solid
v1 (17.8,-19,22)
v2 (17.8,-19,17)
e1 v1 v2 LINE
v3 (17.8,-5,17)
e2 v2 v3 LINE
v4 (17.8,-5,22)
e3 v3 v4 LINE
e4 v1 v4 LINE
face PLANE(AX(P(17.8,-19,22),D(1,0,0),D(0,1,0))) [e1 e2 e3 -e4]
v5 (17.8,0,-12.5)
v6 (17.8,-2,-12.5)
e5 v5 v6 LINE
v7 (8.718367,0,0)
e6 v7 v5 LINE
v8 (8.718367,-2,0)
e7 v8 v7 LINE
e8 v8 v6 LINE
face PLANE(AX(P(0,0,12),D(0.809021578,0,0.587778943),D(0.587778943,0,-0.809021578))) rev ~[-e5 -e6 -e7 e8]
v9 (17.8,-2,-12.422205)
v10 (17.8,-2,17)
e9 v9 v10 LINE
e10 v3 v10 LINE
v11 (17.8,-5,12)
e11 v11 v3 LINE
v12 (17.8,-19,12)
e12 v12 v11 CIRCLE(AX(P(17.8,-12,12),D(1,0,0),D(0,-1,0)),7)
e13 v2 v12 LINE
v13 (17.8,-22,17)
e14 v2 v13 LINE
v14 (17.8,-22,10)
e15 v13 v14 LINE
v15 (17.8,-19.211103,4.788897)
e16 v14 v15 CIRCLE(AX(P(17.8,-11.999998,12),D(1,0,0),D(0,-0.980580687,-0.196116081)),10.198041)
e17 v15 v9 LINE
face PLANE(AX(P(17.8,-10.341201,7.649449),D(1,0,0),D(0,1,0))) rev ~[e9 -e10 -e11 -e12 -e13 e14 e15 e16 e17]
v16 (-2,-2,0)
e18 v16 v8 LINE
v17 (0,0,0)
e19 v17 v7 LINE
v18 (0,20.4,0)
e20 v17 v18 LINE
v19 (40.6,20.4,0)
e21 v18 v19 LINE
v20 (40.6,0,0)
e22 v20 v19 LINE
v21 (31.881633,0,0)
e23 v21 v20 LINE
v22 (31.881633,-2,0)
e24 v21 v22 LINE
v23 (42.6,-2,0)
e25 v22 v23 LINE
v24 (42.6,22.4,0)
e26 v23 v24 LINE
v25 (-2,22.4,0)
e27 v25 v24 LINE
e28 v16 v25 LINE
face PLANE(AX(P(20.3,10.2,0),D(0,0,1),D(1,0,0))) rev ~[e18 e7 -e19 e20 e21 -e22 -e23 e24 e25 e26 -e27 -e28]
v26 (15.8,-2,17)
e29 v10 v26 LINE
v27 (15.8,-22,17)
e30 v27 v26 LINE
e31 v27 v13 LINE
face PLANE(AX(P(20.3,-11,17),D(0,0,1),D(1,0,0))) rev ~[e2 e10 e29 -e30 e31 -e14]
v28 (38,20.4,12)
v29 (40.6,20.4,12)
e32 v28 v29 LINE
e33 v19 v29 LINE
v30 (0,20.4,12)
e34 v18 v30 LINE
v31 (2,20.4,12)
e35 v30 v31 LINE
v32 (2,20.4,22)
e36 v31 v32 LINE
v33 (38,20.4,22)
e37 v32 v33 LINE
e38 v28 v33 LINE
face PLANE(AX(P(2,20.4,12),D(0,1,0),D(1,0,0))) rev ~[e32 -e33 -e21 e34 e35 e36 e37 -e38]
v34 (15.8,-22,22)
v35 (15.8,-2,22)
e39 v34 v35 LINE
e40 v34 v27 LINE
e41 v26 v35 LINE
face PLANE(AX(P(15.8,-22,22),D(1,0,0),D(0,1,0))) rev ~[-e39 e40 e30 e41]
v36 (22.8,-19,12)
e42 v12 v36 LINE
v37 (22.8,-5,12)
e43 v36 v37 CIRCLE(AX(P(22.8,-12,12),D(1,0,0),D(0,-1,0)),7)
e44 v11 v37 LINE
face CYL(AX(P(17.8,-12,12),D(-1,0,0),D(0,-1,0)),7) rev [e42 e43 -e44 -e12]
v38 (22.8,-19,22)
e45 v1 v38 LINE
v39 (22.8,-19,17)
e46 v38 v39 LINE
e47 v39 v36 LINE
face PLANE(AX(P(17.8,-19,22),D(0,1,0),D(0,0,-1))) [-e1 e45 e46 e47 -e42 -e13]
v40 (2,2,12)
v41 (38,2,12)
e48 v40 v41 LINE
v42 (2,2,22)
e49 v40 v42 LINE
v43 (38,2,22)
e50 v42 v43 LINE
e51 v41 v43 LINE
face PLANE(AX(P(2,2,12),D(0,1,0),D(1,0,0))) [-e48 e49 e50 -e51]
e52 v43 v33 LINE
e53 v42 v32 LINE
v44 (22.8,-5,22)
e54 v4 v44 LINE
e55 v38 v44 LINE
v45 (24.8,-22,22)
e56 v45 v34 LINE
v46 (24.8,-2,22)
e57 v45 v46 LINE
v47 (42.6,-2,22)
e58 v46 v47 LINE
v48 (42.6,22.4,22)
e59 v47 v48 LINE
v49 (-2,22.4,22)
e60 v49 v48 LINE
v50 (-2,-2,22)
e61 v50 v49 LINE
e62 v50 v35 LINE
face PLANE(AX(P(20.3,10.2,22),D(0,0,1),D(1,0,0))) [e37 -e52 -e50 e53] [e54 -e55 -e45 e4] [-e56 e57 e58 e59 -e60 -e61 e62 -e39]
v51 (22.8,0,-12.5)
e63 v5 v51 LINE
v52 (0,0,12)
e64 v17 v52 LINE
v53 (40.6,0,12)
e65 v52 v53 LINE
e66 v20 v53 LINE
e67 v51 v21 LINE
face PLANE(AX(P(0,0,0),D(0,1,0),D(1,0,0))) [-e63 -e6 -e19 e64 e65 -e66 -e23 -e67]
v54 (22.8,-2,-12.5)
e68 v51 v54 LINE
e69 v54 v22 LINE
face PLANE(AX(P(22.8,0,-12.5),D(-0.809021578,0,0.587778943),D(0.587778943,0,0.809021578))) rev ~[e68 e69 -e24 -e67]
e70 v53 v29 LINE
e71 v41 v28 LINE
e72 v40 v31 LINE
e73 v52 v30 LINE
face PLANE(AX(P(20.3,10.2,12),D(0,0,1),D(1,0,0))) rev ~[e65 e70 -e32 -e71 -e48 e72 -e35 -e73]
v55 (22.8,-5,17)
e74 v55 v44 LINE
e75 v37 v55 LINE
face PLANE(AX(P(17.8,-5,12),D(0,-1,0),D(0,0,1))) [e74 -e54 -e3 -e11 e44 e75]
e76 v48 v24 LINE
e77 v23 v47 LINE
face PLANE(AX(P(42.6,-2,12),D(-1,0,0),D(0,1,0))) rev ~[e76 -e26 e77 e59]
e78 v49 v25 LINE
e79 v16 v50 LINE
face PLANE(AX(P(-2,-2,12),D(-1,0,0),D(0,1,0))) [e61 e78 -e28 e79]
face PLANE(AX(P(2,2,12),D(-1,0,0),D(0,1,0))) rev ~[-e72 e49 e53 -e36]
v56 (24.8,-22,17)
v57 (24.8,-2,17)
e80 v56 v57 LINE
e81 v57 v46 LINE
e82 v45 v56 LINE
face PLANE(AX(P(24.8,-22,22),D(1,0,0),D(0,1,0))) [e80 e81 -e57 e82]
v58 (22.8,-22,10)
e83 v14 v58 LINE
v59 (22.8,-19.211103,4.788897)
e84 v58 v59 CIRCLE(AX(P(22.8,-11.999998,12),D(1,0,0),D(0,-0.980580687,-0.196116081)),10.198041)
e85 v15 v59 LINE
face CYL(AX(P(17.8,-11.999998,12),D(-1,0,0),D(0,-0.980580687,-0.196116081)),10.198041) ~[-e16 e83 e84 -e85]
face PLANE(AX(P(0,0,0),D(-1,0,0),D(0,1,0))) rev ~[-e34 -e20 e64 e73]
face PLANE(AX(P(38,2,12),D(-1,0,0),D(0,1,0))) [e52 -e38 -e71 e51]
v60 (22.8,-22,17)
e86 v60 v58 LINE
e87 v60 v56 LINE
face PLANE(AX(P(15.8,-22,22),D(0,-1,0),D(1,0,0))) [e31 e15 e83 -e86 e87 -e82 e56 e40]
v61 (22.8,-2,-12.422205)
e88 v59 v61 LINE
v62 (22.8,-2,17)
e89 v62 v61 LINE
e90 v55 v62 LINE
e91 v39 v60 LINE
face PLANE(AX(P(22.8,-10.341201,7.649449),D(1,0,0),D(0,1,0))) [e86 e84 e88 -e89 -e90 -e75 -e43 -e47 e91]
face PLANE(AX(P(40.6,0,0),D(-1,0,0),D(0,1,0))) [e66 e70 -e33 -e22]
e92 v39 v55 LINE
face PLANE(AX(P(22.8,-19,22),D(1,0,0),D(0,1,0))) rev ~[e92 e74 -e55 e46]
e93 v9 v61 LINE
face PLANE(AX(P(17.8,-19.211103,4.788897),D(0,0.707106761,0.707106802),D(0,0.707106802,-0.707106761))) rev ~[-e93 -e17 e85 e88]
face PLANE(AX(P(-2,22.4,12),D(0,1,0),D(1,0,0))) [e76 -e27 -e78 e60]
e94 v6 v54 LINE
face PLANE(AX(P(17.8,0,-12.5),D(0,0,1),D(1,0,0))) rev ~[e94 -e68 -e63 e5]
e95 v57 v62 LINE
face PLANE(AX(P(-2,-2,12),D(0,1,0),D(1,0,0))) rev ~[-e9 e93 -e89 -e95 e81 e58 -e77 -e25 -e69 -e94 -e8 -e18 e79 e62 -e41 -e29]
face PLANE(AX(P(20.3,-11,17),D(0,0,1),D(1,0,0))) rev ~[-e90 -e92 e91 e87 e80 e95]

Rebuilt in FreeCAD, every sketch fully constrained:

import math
import FreeCAD as App
import Part
import Sketcher

V = App.Vector
Q = App.Units.Quantity


def add_polygon(sketch, points):
    """Adds a closed chain of lines whose ends are joined by coincident constraints."""
    first, n = sketch.GeometryCount, len(points)
    for a, b in zip(points, points[1:] + points[:1]):
        sketch.addGeometry(Part.LineSegment(App.Vector(*a, 0), App.Vector(*b, 0)), False)
    for i in range(n):
        sketch.addConstraint(Sketcher.Constraint("Coincident", first + i, 2, first + (i + 1) % n, 1))

doc = App.newDocument("Part")
body = doc.addObject("PartDesign::Body", "Body")

# Sketch on XY plane
sketch1 = doc.addObject("Sketcher::SketchObject", "Sketch")
body.addObject(sketch1)
sketch1.AttachmentSupport = (doc.XY_Plane, [""])
sketch1.MapMode = "FlatFace"
add_polygon(sketch1, [(-2, 22.4), (-2, -2), (42.6, -2), (42.6, 22.4)])  # lines 0-3
add_polygon(sketch1, [(40.6, 0), (0, 0), (0, 20.4), (40.6, 20.4)])  # lines 4-7
sketch1.addConstraint(Sketcher.Constraint("Vertical", 0))
sketch1.addConstraint(Sketcher.Constraint("Horizontal", 1))
sketch1.addConstraint(Sketcher.Constraint("Vertical", 2))
sketch1.addConstraint(Sketcher.Constraint("Horizontal", 3))
sketch1.addConstraint(Sketcher.Constraint("Horizontal", 4))
sketch1.addConstraint(Sketcher.Constraint("Vertical", 5))
sketch1.addConstraint(Sketcher.Constraint("Horizontal", 6))
sketch1.addConstraint(Sketcher.Constraint("Vertical", 7))
sketch1.addConstraint(Sketcher.Constraint("Coincident", 4, 2, -1, 1))
sketch1.addConstraint(Sketcher.Constraint("DistanceX", 1, 1, 1, 2, Q("44.6 mm")))
sketch1.addConstraint(Sketcher.Constraint("DistanceX", 4, 2, 4, 1, Q("40.6 mm")))
sketch1.addConstraint(Sketcher.Constraint("DistanceY", 0, 2, 0, 1, Q("24.4 mm")))
sketch1.addConstraint(Sketcher.Constraint("DistanceY", 5, 1, 5, 2, Q("20.4 mm")))
sketch1.addConstraint(Sketcher.Constraint("DistanceX", 0, 2, -1, 1, Q("2 mm")))
sketch1.addConstraint(Sketcher.Constraint("DistanceY", 0, 2, -1, 1, Q("2 mm")))
pad1 = doc.addObject("PartDesign::Pad", "Pad")
body.addObject(pad1)
pad1.Profile = sketch1
pad1.Length = 12

# Sketch on XZ plane
sketch2 = doc.addObject("Sketcher::SketchObject", "Sketch001")
body.addObject(sketch2)
sketch2.AttachmentSupport = (doc.XZ_Plane, [""])
sketch2.MapMode = "FlatFace"
add_polygon(sketch2, [(0, 12), (17.8, -12.5), (22.8, -12.5), (40.6, 12)])  # lines 0-3
sketch2.addConstraint(Sketcher.Constraint("Horizontal", 1))
sketch2.addConstraint(Sketcher.Constraint("Horizontal", 3))
sketch2.addConstraint(Sketcher.Constraint("PointOnObject", 3, 2, -2))
sketch2.addConstraint(Sketcher.Constraint("Equal", 0, 2))
sketch2.addConstraint(Sketcher.Constraint("DistanceX", 1, 1, 1, 2, Q("5 mm")))
sketch2.addConstraint(Sketcher.Constraint("DistanceX", 3, 2, 3, 1, Q("40.6 mm")))
sketch2.addConstraint(Sketcher.Constraint("DistanceY", -1, 1, 2, 2, Q("12 mm")))
sketch2.addConstraint(Sketcher.Constraint("DistanceY", 0, 2, -1, 1, Q("12.5 mm")))
pad2 = doc.addObject("PartDesign::Pad", "Pad001")
body.addObject(pad2)
pad2.Profile = sketch2
pad2.Length = 2

# Sketch on YZ plane
sketch3 = doc.addObject("Sketcher::SketchObject", "Sketch002")
body.addObject(sketch3)
sketch3.AttachmentSupport = (doc.YZ_Plane, [""])
sketch3.MapMode = "FlatFace"
sketch3.AttachmentOffset = App.Placement(V(0, 0, 17.8), App.Rotation())
sketch3.addGeometry(Part.LineSegment(V(-22, 22, 0), V(-22, 10, 0)), False)
sketch3.addGeometry(Part.ArcOfCircle(Part.Circle(V(-11.999998, 12, 0), V(0, 0, 1), 10.198041), math.radians(-168.690071), math.radians(-135.000009)), False)
sketch3.addGeometry(Part.LineSegment(V(-19.211103, 4.788897, 0), V(-2, -12.422205, 0)), False)
sketch3.addGeometry(Part.LineSegment(V(-2, -12.422205, 0), V(-2, 22, 0)), False)
sketch3.addGeometry(Part.LineSegment(V(-2, 22, 0), V(-5, 22, 0)), False)
sketch3.addGeometry(Part.LineSegment(V(-5, 22, 0), V(-5, 12, 0)), False)
sketch3.addGeometry(Part.ArcOfCircle(Part.Circle(V(-12, 12, 0), V(0, 0, 1), 7), math.radians(180), math.radians(360)), False)
sketch3.addGeometry(Part.LineSegment(V(-19, 12, 0), V(-19, 22, 0)), False)
sketch3.addGeometry(Part.LineSegment(V(-19, 22, 0), V(-22, 22, 0)), False)
sketch3.addConstraint(Sketcher.Constraint("Coincident", 0, 2, 1, 1))
sketch3.addConstraint(Sketcher.Constraint("Tangent", 1, 2, 2, 1))
sketch3.addConstraint(Sketcher.Constraint("Coincident", 2, 2, 3, 1))
sketch3.addConstraint(Sketcher.Constraint("Coincident", 3, 2, 4, 1))
sketch3.addConstraint(Sketcher.Constraint("Coincident", 4, 2, 5, 1))
sketch3.addConstraint(Sketcher.Constraint("Tangent", 5, 2, 6, 2))
sketch3.addConstraint(Sketcher.Constraint("Tangent", 6, 1, 7, 1))
sketch3.addConstraint(Sketcher.Constraint("Coincident", 7, 2, 8, 1))
sketch3.addConstraint(Sketcher.Constraint("Coincident", 8, 2, 0, 1))
sketch3.addConstraint(Sketcher.Constraint("Vertical", 0))
sketch3.addConstraint(Sketcher.Constraint("Vertical", 3))
sketch3.addConstraint(Sketcher.Constraint("Horizontal", 4))
sketch3.addConstraint(Sketcher.Constraint("Vertical", 5))
sketch3.addConstraint(Sketcher.Constraint("Vertical", 7))
sketch3.addConstraint(Sketcher.Constraint("Horizontal", 8))
sketch3.addConstraint(Sketcher.Constraint("Coincident", 6, 3, 1, 3))
sketch3.addConstraint(Sketcher.Constraint("Horizontal", 4, 2, 7, 2))
sketch3.addConstraint(Sketcher.Constraint("Equal", 4, 8))
sketch3.addConstraint(Sketcher.Constraint("Radius", 6, Q("7 mm")))
sketch3.addConstraint(Sketcher.Constraint("DistanceX", 4, 2, 4, 1, Q("3 mm")))
sketch3.addConstraint(Sketcher.Constraint("DistanceY", 0, 2, 0, 1, Q("12 mm")))
sketch3.addConstraint(Sketcher.Constraint("DistanceY", 5, 2, 5, 1, Q("10 mm")))
sketch3.addConstraint(Sketcher.Constraint("Angle", 2, Q("-44.999998 deg")))
sketch3.addConstraint(Sketcher.Constraint("DistanceX", 1, 3, -1, 1, Q("11.999998 mm")))
sketch3.addConstraint(Sketcher.Constraint("DistanceY", -1, 1, 1, 3, Q("12 mm")))
pad3 = doc.addObject("PartDesign::Pad", "Pad002")
body.addObject(pad3)
pad3.Profile = sketch3
pad3.Length = 5

# Sketch on XY plane
sketch4 = doc.addObject("Sketcher::SketchObject", "Sketch003")
body.addObject(sketch4)
sketch4.AttachmentSupport = (doc.XY_Plane, [""])
sketch4.MapMode = "FlatFace"
sketch4.AttachmentOffset = App.Placement(V(0, 0, 22), App.Rotation())
add_polygon(sketch4, [(15.8, 0), (15.8, -22), (24.8, -22), (24.8, 0)])  # lines 0-3
add_polygon(sketch4, [(22.8, -19), (17.8, -19), (17.8, -2), (22.8, -2)])  # lines 4-7
sketch4.addConstraint(Sketcher.Constraint("Vertical", 0))
sketch4.addConstraint(Sketcher.Constraint("Horizontal", 1))
sketch4.addConstraint(Sketcher.Constraint("Vertical", 2))
sketch4.addConstraint(Sketcher.Constraint("Horizontal", 3))
sketch4.addConstraint(Sketcher.Constraint("Horizontal", 4))
sketch4.addConstraint(Sketcher.Constraint("Vertical", 5))
sketch4.addConstraint(Sketcher.Constraint("Horizontal", 6))
sketch4.addConstraint(Sketcher.Constraint("Vertical", 7))
sketch4.addConstraint(Sketcher.Constraint("PointOnObject", 2, 2, -1))
sketch4.addConstraint(Sketcher.Constraint("DistanceX", 1, 1, 1, 2, Q("9 mm")))
sketch4.addConstraint(Sketcher.Constraint("DistanceX", 4, 2, 4, 1, Q("5 mm")))
sketch4.addConstraint(Sketcher.Constraint("DistanceY", 0, 2, 0, 1, Q("22 mm")))
sketch4.addConstraint(Sketcher.Constraint("DistanceY", 5, 1, 5, 2, Q("17 mm")))
sketch4.addConstraint(Sketcher.Constraint("DistanceY", 4, 2, -1, 1, Q("19 mm")))
sketch4.addConstraint(Sketcher.Constraint("DistanceX", 0, 2, 4, 2, Q("2 mm")))
sketch4.addConstraint(Sketcher.Constraint("DistanceX", -1, 1, 0, 2, Q("15.8 mm")))
pad4 = doc.addObject("PartDesign::Pad", "Pad003")
body.addObject(pad4)
pad4.Profile = sketch4
pad4.Length = 5
pad4.Reversed = True

# Sketch on XY plane
sketch5 = doc.addObject("Sketcher::SketchObject", "Sketch004")
body.addObject(sketch5)
sketch5.AttachmentSupport = (doc.XY_Plane, [""])
sketch5.MapMode = "FlatFace"
sketch5.AttachmentOffset = App.Placement(V(0, 0, 12), App.Rotation())
add_polygon(sketch5, [(-2, 22.4), (-2, -2), (42.6, -2), (42.6, 22.4)])  # lines 0-3
add_polygon(sketch5, [(38, 2), (2, 2), (2, 20.4), (38, 20.4)])  # lines 4-7
sketch5.addConstraint(Sketcher.Constraint("Vertical", 0))
sketch5.addConstraint(Sketcher.Constraint("Horizontal", 1))
sketch5.addConstraint(Sketcher.Constraint("Vertical", 2))
sketch5.addConstraint(Sketcher.Constraint("Horizontal", 3))
sketch5.addConstraint(Sketcher.Constraint("Horizontal", 4))
sketch5.addConstraint(Sketcher.Constraint("Vertical", 5))
sketch5.addConstraint(Sketcher.Constraint("Horizontal", 6))
sketch5.addConstraint(Sketcher.Constraint("Vertical", 7))
sketch5.addConstraint(Sketcher.Constraint("Symmetric", 0, 2, 4, 2, -1, 1))
sketch5.addConstraint(Sketcher.Constraint("DistanceX", 4, 2, 4, 1, Q("36 mm")))
sketch5.addConstraint(Sketcher.Constraint("DistanceX", 1, 1, 1, 2, Q("44.6 mm")))
sketch5.addConstraint(Sketcher.Constraint("DistanceY", 0, 2, 0, 1, Q("24.4 mm")))
sketch5.addConstraint(Sketcher.Constraint("DistanceY", 5, 1, 5, 2, Q("18.4 mm")))
sketch5.addConstraint(Sketcher.Constraint("DistanceX", 0, 2, -1, 1, Q("2 mm")))
sketch5.addConstraint(Sketcher.Constraint("DistanceY", 0, 2, -1, 1, Q("2 mm")))
pad5 = doc.addObject("PartDesign::Pad", "Pad004")
body.addObject(pad5)
pad5.Profile = sketch5
pad5.Length = 10

doc.recompute()
